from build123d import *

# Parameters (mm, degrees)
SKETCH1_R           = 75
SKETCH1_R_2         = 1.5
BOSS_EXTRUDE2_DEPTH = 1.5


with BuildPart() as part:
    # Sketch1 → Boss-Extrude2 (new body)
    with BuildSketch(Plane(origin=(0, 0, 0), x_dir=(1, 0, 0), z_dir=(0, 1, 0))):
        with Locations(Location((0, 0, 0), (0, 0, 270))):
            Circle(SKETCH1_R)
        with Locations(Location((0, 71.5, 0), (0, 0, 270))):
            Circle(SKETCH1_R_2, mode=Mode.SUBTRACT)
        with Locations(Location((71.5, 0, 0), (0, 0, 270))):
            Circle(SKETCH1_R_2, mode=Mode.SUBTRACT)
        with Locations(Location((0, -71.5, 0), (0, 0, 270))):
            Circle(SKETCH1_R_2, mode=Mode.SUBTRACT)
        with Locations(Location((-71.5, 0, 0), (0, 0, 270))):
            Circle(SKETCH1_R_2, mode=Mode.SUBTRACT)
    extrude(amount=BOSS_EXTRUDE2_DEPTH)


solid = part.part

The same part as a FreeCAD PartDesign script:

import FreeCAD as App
import Part
import Sketcher
from FreeCAD import Vector

doc = App.newDocument("Part")
body = doc.addObject("PartDesign::Body", "Body")

sketch1 = doc.addObject("Sketcher::SketchObject", "Sketch")
body.addObject(sketch1)
sketch1.AttachmentSupport = (doc.XZ_Plane, [""])
sketch1.MapMode = "FlatFace"
sketch1.addGeometry(Part.Circle(Vector(0, 0, 0), Vector(0, 0, 1), 75), False)
sketch1.addGeometry(Part.Circle(Vector(0, -71.5, 0), Vector(0, 0, 1), 1.5), False)
sketch1.addGeometry(Part.Circle(Vector(-71.5, 0, 0), Vector(0, 0, 1), 1.5), False)
sketch1.addGeometry(Part.Circle(Vector(71.5, 0, 0), Vector(0, 0, 1), 1.5), False)
sketch1.addGeometry(Part.Circle(Vector(0, 71.5, 0), Vector(0, 0, 1), 1.5), False)
sketch1.addConstraint(Sketcher.Constraint("Coincident", 0, 3, -1, 1))
sketch1.addConstraint(Sketcher.Constraint("Equal", 1, 2))
sketch1.addConstraint(Sketcher.Constraint("Equal", 2, 3))
sketch1.addConstraint(Sketcher.Constraint("Equal", 3, 4))
sketch1.addConstraint(Sketcher.Constraint("Symmetric", 2, 3, 3, 3, -1, 1))
sketch1.addConstraint(Sketcher.Constraint("Symmetric", 1, 3, 4, 3, -1, 1))
sketch1.addConstraint(Sketcher.Constraint("PointOnObject", 1, 3, -2))
sketch1.addConstraint(Sketcher.Constraint("PointOnObject", 2, 3, -1))
sketch1.addConstraint(Sketcher.Constraint("Diameter", 0, 150.0))
sketch1.addConstraint(Sketcher.Constraint("Diameter", 1, 3.0))
sketch1.addConstraint(Sketcher.Constraint("DistanceX", 2, 3, 3, 3, 143.0))
sketch1.addConstraint(Sketcher.Constraint("DistanceY", 1, 3, 4, 3, 143.0))
pad1 = doc.addObject("PartDesign::Pad", "Pad")
body.addObject(pad1)
pad1.Profile = sketch1
pad1.Length = 1.5
pad1.Reversed = True

doc.recompute()
